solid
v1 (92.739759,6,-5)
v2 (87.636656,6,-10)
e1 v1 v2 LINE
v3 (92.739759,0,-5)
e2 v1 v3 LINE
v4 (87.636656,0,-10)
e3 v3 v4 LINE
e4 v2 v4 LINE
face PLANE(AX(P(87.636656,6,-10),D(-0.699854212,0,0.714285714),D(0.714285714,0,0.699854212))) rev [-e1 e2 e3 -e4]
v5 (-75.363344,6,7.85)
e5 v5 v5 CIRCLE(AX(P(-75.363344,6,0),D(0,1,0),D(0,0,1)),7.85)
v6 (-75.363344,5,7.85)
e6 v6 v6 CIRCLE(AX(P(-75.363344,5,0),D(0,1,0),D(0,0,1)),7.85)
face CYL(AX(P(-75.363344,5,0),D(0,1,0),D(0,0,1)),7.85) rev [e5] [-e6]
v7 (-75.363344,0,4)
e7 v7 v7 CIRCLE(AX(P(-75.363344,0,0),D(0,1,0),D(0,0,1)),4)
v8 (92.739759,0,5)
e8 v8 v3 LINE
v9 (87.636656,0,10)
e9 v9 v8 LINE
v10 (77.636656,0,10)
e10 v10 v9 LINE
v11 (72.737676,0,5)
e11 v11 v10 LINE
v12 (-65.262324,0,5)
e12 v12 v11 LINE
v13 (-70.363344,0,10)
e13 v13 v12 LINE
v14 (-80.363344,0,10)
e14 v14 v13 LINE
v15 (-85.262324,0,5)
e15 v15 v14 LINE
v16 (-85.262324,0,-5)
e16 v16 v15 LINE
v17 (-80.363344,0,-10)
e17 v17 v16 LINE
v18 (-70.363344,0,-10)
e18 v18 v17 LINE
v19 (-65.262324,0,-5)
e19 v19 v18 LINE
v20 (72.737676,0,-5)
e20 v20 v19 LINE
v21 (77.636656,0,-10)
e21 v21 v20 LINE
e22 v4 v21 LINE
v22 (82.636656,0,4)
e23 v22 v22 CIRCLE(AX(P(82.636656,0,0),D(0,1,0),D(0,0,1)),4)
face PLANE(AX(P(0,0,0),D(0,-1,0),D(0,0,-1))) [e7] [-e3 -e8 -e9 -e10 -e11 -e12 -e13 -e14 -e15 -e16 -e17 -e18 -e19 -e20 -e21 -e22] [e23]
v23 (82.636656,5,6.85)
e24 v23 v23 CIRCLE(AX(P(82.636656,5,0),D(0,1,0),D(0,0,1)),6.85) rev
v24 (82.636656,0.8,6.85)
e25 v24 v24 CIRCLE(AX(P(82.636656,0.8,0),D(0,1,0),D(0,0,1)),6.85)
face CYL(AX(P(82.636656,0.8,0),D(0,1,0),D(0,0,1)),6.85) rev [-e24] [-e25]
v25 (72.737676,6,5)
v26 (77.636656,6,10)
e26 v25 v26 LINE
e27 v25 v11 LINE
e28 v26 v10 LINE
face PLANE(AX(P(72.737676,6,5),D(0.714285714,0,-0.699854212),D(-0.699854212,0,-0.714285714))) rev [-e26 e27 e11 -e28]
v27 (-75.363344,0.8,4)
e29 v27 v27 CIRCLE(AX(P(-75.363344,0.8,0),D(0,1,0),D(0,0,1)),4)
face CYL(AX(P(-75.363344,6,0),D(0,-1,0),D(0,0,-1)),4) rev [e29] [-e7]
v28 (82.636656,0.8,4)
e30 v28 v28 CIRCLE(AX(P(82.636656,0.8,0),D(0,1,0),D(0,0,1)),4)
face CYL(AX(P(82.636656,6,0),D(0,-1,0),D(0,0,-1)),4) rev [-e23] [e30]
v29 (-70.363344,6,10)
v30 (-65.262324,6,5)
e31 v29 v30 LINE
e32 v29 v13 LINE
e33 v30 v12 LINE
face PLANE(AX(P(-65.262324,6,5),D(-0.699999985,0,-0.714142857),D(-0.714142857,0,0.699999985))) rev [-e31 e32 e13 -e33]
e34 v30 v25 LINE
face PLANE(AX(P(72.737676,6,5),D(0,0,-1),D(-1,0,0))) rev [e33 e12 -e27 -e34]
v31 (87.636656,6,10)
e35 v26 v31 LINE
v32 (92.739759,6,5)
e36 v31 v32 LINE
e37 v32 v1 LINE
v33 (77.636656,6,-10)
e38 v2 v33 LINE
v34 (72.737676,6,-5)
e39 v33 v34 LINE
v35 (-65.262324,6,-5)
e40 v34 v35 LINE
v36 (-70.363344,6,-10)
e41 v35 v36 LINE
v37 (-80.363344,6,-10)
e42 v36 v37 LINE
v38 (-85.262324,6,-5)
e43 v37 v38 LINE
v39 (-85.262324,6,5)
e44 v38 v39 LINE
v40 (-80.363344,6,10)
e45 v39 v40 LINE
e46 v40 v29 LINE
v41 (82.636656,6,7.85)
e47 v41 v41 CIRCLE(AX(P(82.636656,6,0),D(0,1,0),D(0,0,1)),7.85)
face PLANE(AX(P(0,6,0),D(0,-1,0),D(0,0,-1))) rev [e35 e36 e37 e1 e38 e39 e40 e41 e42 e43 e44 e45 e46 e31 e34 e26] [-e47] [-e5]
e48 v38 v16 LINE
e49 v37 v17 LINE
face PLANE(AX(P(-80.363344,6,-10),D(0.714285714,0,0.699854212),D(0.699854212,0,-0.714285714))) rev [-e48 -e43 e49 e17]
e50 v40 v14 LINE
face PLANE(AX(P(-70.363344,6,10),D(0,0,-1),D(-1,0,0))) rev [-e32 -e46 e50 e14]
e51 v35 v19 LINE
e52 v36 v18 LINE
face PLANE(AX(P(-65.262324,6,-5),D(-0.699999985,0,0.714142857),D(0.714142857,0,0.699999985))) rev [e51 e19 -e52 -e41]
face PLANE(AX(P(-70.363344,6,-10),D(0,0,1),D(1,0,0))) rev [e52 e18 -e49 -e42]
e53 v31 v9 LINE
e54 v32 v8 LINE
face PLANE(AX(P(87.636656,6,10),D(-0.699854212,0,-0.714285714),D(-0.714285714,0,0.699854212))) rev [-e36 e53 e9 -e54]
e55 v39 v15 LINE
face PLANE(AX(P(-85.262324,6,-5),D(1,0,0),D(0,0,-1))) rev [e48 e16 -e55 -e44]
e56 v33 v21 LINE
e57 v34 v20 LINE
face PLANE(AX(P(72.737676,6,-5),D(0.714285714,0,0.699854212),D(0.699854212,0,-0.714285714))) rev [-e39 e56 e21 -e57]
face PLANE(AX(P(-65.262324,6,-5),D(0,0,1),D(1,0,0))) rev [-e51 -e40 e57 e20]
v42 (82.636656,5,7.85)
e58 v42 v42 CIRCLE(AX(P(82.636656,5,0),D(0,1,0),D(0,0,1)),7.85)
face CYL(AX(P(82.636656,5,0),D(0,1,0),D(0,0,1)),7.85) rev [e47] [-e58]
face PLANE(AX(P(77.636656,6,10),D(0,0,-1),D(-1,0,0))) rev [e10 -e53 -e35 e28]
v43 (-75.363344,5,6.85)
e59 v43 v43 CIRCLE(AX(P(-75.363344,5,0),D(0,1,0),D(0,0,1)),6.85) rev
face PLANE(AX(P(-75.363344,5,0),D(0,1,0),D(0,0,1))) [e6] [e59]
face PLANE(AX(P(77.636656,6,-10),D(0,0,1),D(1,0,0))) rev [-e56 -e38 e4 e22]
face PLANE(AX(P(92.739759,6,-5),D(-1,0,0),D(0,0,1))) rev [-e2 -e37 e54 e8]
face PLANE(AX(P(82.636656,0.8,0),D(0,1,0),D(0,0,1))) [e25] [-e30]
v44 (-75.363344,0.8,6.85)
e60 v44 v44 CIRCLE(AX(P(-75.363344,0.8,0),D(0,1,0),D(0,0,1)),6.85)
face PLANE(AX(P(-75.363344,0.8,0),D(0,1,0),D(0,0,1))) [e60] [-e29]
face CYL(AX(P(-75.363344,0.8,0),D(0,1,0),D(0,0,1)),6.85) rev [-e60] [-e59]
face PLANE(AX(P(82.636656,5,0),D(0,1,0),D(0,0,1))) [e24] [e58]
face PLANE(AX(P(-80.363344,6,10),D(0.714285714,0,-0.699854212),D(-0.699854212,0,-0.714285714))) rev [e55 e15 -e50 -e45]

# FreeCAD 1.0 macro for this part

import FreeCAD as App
import Part
import Sketcher

V = App.Vector


def add_polygon(sketch, points):
    """Adds a closed chain of lines whose ends are joined by coincident constraints."""
    first, n = sketch.GeometryCount, len(points)
    for a, b in zip(points, points[1:] + points[:1]):
        sketch.addGeometry(Part.LineSegment(App.Vector(*a, 0), App.Vector(*b, 0)), False)
    for i in range(n):
        sketch.addConstraint(Sketcher.Constraint("Coincident", first + i, 2, first + (i + 1) % n, 1))

doc = App.newDocument("Part")
body = doc.addObject("PartDesign::Body", "Body")

sketch1 = body.newObject("Sketcher::SketchObject", "Sketch")
sketch1.AttachmentSupport = (doc.getObject("XZ_Plane"), [""])
sketch1.MapMode = "FlatFace"
add_polygon(sketch1, [(-65.262324, -5), (-70.363344, -10), (-80.363344, -10), (-85.262324, -5), (-85.262324, 5), (-80.363344, 10), (-70.363344, 10), (-65.262324, 5), (72.737676, 5), (77.636656, 10), (87.636656, 10), (92.739759, 5), (92.739759, -5), (87.636656, -10), (77.636656, -10), (72.737676, -5)])
sketch1.addGeometry(Part.Circle(V(-75.363344, 0, 0), V(0, 0, 1), 4), False)
sketch1.addGeometry(Part.Circle(V(82.636656, 0, 0), V(0, 0, 1), 4), False)
sketch1.addConstraint(Sketcher.Constraint("Horizontal", 1))
sketch1.addConstraint(Sketcher.Constraint("Vertical", 3))
sketch1.addConstraint(Sketcher.Constraint("Horizontal", 5))
sketch1.addConstraint(Sketcher.Constraint("Horizontal", 7))
sketch1.addConstraint(Sketcher.Constraint("Horizontal", 9))
sketch1.addConstraint(Sketcher.Constraint("Vertical", 11))
sketch1.addConstraint(Sketcher.Constraint("Horizontal", 13))
sketch1.addConstraint(Sketcher.Constraint("Horizontal", 15))
sketch1.addConstraint(Sketcher.Constraint("Equal", 16, 17))
sketch1.addConstraint(Sketcher.Constraint("Symmetric", 1, 2, 4, 2, -1))
sketch1.addConstraint(Sketcher.Constraint("Symmetric", 9, 2, 12, 2, -1))
sketch1.addConstraint(Sketcher.Constraint("Symmetric", 7, 2, 14, 2, -1))
sketch1.addConstraint(Sketcher.Constraint("PointOnObject", 16, 3, -1))
sketch1.addConstraint(Sketcher.Constraint("PointOnObject", 17, 3, -1))
sketch1.addConstraint(Sketcher.Constraint("Parallel", 4, 8))
sketch1.addConstraint(Sketcher.Constraint("Perpendicular", 8, 10))
sketch1.addConstraint(Sketcher.Constraint("Perpendicular", 2, 12))
sketch1.addConstraint(Sketcher.Constraint("Perpendicular", 12, 14))
sketch1.addConstraint(Sketcher.Constraint("Horizontal", 3, 2, 6, 2))
sketch1.addConstraint(Sketcher.Constraint("Horizontal", 5, 2, 8, 2))
sketch1.addConstraint(Sketcher.Constraint("Horizontal", 7, 2, 10, 2))
sketch1.addConstraint(Sketcher.Constraint("Horizontal", 2, 2, 11, 2))
sketch1.addConstraint(Sketcher.Constraint("Vertical", 0, 2, 5, 2))
sketch1.addConstraint(Sketcher.Constraint("Vertical", 6, 2, 15, 2))
sketch1.addConstraint(Sketcher.Constraint("Equal", 5, 9))
sketch1.addConstraint(Sketcher.Constraint("Equal", 13, 3))
sketch1.addConstraint(Sketcher.Constraint("Diameter", 16, 8.0))
sketch1.addConstraint(Sketcher.Constraint("DistanceX", 1, 2, 1, 1, 10.0))
sketch1.addConstraint(Sketcher.Constraint("DistanceX", 7, 1, 7, 2, 138.0))
sketch1.addConstraint(Sketcher.Constraint("Distance", 2, 7.0))
sketch1.addConstraint(Sketcher.Constraint("DistanceY", 0, 2, -1, 1, 10.0))
sketch1.addConstraint(Sketcher.Constraint("DistanceX", 16, 3, 17, 3, 158.0))
sketch1.addConstraint(Sketcher.Constraint("DistanceX", 16, 3, 0, 2, 5.0))
sketch1.addConstraint(Sketcher.Constraint("DistanceX", 3, 2, 6, 2, 20.0))
sketch1.addConstraint(Sketcher.Constraint("DistanceX", -1, 1, 10, 2, 92.739759))
pad1 = body.newObject("PartDesign::Pad", "Pad")
pad1.Profile = sketch1
pad1.Length = 6
pad1.Reversed = True

sketch2 = body.newObject("Sketcher::SketchObject", "Sketch001")
sketch2.AttachmentSupport = (doc.getObject("XZ_Plane"), [""])
sketch2.MapMode = "FlatFace"
sketch2.AttachmentOffset = App.Placement(V(0, 0, -6), App.Rotation())
sketch2.addGeometry(Part.Circle(V(82.636656, 0, 0), V(0, 0, 1), 6.85), False)
sketch2.addGeometry(Part.Circle(V(-75.363344, 0, 0), V(0, 0, 1), 6.85), False)
sketch2.addConstraint(Sketcher.Constraint("Equal", 0, 1))
sketch2.addConstraint(Sketcher.Constraint("PointOnObject", 0, 3, -1))
sketch2.addConstraint(Sketcher.Constraint("PointOnObject", 1, 3, -1))
sketch2.addConstraint(Sketcher.Constraint("Diameter", 0, 13.7))
sketch2.addConstraint(Sketcher.Constraint("DistanceX", 1, 3, 0, 3, 158.0))
sketch2.addConstraint(Sketcher.Constraint("DistanceX", -1, 1, 0, 3, 82.636656))
pocket1 = body.newObject("PartDesign::Pocket", "Pocket")
pocket1.Profile = sketch2
pocket1.Length = 5.2
pocket1.Reversed = True

sketch3 = body.newObject("Sketcher::SketchObject", "Sketch002")
sketch3.AttachmentSupport = (doc.getObject("XZ_Plane"), [""])
sketch3.MapMode = "FlatFace"
sketch3.AttachmentOffset = App.Placement(V(0, 0, -6), App.Rotation())
sketch3.addGeometry(Part.Circle(V(82.636656, 0, 0), V(0, 0, 1), 7.85), False)
sketch3.addGeometry(Part.Circle(V(-75.363344, 0, 0), V(0, 0, 1), 7.85), False)
sketch3.addConstraint(Sketcher.Constraint("Equal", 0, 1))
sketch3.addConstraint(Sketcher.Constraint("PointOnObject", 0, 3, -1))
sketch3.addConstraint(Sketcher.Constraint("PointOnObject", 1, 3, -1))
sketch3.addConstraint(Sketcher.Constraint("Diameter", 0, 15.7))
sketch3.addConstraint(Sketcher.Constraint("DistanceX", 1, 3, 0, 3, 158.0))
sketch3.addConstraint(Sketcher.Constraint("DistanceX", -1, 1, 0, 3, 82.636656))
pocket2 = body.newObject("PartDesign::Pocket", "Pocket001")
pocket2.Profile = sketch3
pocket2.Length = 1
pocket2.Reversed = True

doc.recompute()
